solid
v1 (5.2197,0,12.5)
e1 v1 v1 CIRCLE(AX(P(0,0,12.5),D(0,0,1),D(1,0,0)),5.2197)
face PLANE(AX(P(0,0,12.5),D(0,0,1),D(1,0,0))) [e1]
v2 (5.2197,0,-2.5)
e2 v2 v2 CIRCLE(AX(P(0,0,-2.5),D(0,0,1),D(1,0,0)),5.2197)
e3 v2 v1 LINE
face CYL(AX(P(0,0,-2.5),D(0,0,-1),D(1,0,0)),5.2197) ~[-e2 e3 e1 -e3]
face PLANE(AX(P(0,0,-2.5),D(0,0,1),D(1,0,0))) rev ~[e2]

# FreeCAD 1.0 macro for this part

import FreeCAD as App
import Part
import Sketcher
Q = App.Units.Quantity

doc = App.newDocument("Part")
body = doc.addObject("PartDesign::Body", "Body")

sketch1 = body.newObject("Sketcher::SketchObject", "Sketch")
sketch1.AttachmentSupport = (doc.getObject("XY_Plane"), [""])
sketch1.MapMode = "FlatFace"
sketch1.AttachmentOffset = App.Placement(App.Vector(0, 0, -2.5), App.Rotation())
sketch1.addGeometry(Part.Circle(App.Vector(0, 0, 0), App.Vector(0, 0, 1), 5), False)
sketch1.addConstraint([
    Sketcher.Constraint("Coincident", 0, 3, -1, 1),
    Sketcher.Constraint("Diameter", 0, Q("10.4394 mm")),
])
pad1 = body.newObject("PartDesign::Pad", "Pad")
pad1.Profile = sketch1
pad1.Length = 15

doc.recompute()
